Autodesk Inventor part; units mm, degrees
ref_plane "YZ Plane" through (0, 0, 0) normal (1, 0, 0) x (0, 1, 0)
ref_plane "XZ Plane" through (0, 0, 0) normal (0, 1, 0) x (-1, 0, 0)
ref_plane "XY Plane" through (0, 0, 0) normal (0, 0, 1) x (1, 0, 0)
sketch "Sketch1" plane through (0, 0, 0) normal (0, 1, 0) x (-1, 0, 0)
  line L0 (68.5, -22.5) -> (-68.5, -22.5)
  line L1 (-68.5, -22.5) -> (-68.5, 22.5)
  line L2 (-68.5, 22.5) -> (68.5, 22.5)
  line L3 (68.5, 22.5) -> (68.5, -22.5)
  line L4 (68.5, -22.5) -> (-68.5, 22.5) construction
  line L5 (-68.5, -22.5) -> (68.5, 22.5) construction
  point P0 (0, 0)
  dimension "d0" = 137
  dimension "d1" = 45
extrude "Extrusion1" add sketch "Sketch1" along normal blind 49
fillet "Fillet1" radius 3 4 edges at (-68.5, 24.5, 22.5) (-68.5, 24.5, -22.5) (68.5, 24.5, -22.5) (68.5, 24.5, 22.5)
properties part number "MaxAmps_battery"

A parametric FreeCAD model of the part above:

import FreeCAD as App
import Part
import Sketcher


def edges_at(feature, points):
    """Names of the edges that pass closest to the given points."""
    edges = feature.Shape.Edges
    near = lambda p: min(range(len(edges)), key=lambda i: edges[i].distToShape(Part.Vertex(*p))[0])
    return sorted({f"Edge{near(p) + 1}" for p in points})

doc = App.newDocument("Part")
body = doc.addObject("PartDesign::Body", "Body")

# Sketch on XZ plane
sketch1 = body.newObject("Sketcher::SketchObject", "Sketch")
sketch1.AttachmentSupport = (doc.getObject("XZ_Plane"), [""])
sketch1.MapMode = "FlatFace"
sketch1.addGeometry([
    Part.LineSegment(App.Vector(68, -22, 0), App.Vector(-68, -22, 0)),
    Part.LineSegment(App.Vector(-68, -22, 0), App.Vector(-68, 22, 0)),
    Part.LineSegment(App.Vector(-68, 22, 0), App.Vector(68, 22, 0)),
    Part.LineSegment(App.Vector(68, 22, 0), App.Vector(68, -22, 0)),
], False)
sketch1.addConstraint([
    Sketcher.Constraint("Coincident", 0, 2, 1, 1),
    Sketcher.Constraint("Coincident", 1, 2, 2, 1),
    Sketcher.Constraint("Coincident", 2, 2, 3, 1),
    Sketcher.Constraint("Coincident", 3, 2, 0, 1),
    Sketcher.Constraint("Horizontal", 0),
    Sketcher.Constraint("Vertical", 1),
    Sketcher.Constraint("Horizontal", 2),
    Sketcher.Constraint("Vertical", 3),
    Sketcher.Constraint("Symmetric", 0, 2, 2, 2, -1, 1),
    Sketcher.Constraint("DistanceX", 0, 2, 0, 1, 137.0),
    Sketcher.Constraint("DistanceY", 1, 1, 1, 2, 45.0),
])
pad1 = body.newObject("PartDesign::Pad", "Pad")
pad1.Profile = sketch1
pad1.Length = 49
pad1.Reversed = True
doc.recompute()

fillet = body.newObject("PartDesign::Fillet", "Fillet")
fillet.Base = (pad1, edges_at(pad1, [
    (-68.5, 24.5, 22.5),
    (-68.5, 24.5, -22.5),
    (68.5, 24.5, -22.5),
    (68.5, 24.5, 22.5),
]))
fillet.Radius = 3

doc.recompute()
